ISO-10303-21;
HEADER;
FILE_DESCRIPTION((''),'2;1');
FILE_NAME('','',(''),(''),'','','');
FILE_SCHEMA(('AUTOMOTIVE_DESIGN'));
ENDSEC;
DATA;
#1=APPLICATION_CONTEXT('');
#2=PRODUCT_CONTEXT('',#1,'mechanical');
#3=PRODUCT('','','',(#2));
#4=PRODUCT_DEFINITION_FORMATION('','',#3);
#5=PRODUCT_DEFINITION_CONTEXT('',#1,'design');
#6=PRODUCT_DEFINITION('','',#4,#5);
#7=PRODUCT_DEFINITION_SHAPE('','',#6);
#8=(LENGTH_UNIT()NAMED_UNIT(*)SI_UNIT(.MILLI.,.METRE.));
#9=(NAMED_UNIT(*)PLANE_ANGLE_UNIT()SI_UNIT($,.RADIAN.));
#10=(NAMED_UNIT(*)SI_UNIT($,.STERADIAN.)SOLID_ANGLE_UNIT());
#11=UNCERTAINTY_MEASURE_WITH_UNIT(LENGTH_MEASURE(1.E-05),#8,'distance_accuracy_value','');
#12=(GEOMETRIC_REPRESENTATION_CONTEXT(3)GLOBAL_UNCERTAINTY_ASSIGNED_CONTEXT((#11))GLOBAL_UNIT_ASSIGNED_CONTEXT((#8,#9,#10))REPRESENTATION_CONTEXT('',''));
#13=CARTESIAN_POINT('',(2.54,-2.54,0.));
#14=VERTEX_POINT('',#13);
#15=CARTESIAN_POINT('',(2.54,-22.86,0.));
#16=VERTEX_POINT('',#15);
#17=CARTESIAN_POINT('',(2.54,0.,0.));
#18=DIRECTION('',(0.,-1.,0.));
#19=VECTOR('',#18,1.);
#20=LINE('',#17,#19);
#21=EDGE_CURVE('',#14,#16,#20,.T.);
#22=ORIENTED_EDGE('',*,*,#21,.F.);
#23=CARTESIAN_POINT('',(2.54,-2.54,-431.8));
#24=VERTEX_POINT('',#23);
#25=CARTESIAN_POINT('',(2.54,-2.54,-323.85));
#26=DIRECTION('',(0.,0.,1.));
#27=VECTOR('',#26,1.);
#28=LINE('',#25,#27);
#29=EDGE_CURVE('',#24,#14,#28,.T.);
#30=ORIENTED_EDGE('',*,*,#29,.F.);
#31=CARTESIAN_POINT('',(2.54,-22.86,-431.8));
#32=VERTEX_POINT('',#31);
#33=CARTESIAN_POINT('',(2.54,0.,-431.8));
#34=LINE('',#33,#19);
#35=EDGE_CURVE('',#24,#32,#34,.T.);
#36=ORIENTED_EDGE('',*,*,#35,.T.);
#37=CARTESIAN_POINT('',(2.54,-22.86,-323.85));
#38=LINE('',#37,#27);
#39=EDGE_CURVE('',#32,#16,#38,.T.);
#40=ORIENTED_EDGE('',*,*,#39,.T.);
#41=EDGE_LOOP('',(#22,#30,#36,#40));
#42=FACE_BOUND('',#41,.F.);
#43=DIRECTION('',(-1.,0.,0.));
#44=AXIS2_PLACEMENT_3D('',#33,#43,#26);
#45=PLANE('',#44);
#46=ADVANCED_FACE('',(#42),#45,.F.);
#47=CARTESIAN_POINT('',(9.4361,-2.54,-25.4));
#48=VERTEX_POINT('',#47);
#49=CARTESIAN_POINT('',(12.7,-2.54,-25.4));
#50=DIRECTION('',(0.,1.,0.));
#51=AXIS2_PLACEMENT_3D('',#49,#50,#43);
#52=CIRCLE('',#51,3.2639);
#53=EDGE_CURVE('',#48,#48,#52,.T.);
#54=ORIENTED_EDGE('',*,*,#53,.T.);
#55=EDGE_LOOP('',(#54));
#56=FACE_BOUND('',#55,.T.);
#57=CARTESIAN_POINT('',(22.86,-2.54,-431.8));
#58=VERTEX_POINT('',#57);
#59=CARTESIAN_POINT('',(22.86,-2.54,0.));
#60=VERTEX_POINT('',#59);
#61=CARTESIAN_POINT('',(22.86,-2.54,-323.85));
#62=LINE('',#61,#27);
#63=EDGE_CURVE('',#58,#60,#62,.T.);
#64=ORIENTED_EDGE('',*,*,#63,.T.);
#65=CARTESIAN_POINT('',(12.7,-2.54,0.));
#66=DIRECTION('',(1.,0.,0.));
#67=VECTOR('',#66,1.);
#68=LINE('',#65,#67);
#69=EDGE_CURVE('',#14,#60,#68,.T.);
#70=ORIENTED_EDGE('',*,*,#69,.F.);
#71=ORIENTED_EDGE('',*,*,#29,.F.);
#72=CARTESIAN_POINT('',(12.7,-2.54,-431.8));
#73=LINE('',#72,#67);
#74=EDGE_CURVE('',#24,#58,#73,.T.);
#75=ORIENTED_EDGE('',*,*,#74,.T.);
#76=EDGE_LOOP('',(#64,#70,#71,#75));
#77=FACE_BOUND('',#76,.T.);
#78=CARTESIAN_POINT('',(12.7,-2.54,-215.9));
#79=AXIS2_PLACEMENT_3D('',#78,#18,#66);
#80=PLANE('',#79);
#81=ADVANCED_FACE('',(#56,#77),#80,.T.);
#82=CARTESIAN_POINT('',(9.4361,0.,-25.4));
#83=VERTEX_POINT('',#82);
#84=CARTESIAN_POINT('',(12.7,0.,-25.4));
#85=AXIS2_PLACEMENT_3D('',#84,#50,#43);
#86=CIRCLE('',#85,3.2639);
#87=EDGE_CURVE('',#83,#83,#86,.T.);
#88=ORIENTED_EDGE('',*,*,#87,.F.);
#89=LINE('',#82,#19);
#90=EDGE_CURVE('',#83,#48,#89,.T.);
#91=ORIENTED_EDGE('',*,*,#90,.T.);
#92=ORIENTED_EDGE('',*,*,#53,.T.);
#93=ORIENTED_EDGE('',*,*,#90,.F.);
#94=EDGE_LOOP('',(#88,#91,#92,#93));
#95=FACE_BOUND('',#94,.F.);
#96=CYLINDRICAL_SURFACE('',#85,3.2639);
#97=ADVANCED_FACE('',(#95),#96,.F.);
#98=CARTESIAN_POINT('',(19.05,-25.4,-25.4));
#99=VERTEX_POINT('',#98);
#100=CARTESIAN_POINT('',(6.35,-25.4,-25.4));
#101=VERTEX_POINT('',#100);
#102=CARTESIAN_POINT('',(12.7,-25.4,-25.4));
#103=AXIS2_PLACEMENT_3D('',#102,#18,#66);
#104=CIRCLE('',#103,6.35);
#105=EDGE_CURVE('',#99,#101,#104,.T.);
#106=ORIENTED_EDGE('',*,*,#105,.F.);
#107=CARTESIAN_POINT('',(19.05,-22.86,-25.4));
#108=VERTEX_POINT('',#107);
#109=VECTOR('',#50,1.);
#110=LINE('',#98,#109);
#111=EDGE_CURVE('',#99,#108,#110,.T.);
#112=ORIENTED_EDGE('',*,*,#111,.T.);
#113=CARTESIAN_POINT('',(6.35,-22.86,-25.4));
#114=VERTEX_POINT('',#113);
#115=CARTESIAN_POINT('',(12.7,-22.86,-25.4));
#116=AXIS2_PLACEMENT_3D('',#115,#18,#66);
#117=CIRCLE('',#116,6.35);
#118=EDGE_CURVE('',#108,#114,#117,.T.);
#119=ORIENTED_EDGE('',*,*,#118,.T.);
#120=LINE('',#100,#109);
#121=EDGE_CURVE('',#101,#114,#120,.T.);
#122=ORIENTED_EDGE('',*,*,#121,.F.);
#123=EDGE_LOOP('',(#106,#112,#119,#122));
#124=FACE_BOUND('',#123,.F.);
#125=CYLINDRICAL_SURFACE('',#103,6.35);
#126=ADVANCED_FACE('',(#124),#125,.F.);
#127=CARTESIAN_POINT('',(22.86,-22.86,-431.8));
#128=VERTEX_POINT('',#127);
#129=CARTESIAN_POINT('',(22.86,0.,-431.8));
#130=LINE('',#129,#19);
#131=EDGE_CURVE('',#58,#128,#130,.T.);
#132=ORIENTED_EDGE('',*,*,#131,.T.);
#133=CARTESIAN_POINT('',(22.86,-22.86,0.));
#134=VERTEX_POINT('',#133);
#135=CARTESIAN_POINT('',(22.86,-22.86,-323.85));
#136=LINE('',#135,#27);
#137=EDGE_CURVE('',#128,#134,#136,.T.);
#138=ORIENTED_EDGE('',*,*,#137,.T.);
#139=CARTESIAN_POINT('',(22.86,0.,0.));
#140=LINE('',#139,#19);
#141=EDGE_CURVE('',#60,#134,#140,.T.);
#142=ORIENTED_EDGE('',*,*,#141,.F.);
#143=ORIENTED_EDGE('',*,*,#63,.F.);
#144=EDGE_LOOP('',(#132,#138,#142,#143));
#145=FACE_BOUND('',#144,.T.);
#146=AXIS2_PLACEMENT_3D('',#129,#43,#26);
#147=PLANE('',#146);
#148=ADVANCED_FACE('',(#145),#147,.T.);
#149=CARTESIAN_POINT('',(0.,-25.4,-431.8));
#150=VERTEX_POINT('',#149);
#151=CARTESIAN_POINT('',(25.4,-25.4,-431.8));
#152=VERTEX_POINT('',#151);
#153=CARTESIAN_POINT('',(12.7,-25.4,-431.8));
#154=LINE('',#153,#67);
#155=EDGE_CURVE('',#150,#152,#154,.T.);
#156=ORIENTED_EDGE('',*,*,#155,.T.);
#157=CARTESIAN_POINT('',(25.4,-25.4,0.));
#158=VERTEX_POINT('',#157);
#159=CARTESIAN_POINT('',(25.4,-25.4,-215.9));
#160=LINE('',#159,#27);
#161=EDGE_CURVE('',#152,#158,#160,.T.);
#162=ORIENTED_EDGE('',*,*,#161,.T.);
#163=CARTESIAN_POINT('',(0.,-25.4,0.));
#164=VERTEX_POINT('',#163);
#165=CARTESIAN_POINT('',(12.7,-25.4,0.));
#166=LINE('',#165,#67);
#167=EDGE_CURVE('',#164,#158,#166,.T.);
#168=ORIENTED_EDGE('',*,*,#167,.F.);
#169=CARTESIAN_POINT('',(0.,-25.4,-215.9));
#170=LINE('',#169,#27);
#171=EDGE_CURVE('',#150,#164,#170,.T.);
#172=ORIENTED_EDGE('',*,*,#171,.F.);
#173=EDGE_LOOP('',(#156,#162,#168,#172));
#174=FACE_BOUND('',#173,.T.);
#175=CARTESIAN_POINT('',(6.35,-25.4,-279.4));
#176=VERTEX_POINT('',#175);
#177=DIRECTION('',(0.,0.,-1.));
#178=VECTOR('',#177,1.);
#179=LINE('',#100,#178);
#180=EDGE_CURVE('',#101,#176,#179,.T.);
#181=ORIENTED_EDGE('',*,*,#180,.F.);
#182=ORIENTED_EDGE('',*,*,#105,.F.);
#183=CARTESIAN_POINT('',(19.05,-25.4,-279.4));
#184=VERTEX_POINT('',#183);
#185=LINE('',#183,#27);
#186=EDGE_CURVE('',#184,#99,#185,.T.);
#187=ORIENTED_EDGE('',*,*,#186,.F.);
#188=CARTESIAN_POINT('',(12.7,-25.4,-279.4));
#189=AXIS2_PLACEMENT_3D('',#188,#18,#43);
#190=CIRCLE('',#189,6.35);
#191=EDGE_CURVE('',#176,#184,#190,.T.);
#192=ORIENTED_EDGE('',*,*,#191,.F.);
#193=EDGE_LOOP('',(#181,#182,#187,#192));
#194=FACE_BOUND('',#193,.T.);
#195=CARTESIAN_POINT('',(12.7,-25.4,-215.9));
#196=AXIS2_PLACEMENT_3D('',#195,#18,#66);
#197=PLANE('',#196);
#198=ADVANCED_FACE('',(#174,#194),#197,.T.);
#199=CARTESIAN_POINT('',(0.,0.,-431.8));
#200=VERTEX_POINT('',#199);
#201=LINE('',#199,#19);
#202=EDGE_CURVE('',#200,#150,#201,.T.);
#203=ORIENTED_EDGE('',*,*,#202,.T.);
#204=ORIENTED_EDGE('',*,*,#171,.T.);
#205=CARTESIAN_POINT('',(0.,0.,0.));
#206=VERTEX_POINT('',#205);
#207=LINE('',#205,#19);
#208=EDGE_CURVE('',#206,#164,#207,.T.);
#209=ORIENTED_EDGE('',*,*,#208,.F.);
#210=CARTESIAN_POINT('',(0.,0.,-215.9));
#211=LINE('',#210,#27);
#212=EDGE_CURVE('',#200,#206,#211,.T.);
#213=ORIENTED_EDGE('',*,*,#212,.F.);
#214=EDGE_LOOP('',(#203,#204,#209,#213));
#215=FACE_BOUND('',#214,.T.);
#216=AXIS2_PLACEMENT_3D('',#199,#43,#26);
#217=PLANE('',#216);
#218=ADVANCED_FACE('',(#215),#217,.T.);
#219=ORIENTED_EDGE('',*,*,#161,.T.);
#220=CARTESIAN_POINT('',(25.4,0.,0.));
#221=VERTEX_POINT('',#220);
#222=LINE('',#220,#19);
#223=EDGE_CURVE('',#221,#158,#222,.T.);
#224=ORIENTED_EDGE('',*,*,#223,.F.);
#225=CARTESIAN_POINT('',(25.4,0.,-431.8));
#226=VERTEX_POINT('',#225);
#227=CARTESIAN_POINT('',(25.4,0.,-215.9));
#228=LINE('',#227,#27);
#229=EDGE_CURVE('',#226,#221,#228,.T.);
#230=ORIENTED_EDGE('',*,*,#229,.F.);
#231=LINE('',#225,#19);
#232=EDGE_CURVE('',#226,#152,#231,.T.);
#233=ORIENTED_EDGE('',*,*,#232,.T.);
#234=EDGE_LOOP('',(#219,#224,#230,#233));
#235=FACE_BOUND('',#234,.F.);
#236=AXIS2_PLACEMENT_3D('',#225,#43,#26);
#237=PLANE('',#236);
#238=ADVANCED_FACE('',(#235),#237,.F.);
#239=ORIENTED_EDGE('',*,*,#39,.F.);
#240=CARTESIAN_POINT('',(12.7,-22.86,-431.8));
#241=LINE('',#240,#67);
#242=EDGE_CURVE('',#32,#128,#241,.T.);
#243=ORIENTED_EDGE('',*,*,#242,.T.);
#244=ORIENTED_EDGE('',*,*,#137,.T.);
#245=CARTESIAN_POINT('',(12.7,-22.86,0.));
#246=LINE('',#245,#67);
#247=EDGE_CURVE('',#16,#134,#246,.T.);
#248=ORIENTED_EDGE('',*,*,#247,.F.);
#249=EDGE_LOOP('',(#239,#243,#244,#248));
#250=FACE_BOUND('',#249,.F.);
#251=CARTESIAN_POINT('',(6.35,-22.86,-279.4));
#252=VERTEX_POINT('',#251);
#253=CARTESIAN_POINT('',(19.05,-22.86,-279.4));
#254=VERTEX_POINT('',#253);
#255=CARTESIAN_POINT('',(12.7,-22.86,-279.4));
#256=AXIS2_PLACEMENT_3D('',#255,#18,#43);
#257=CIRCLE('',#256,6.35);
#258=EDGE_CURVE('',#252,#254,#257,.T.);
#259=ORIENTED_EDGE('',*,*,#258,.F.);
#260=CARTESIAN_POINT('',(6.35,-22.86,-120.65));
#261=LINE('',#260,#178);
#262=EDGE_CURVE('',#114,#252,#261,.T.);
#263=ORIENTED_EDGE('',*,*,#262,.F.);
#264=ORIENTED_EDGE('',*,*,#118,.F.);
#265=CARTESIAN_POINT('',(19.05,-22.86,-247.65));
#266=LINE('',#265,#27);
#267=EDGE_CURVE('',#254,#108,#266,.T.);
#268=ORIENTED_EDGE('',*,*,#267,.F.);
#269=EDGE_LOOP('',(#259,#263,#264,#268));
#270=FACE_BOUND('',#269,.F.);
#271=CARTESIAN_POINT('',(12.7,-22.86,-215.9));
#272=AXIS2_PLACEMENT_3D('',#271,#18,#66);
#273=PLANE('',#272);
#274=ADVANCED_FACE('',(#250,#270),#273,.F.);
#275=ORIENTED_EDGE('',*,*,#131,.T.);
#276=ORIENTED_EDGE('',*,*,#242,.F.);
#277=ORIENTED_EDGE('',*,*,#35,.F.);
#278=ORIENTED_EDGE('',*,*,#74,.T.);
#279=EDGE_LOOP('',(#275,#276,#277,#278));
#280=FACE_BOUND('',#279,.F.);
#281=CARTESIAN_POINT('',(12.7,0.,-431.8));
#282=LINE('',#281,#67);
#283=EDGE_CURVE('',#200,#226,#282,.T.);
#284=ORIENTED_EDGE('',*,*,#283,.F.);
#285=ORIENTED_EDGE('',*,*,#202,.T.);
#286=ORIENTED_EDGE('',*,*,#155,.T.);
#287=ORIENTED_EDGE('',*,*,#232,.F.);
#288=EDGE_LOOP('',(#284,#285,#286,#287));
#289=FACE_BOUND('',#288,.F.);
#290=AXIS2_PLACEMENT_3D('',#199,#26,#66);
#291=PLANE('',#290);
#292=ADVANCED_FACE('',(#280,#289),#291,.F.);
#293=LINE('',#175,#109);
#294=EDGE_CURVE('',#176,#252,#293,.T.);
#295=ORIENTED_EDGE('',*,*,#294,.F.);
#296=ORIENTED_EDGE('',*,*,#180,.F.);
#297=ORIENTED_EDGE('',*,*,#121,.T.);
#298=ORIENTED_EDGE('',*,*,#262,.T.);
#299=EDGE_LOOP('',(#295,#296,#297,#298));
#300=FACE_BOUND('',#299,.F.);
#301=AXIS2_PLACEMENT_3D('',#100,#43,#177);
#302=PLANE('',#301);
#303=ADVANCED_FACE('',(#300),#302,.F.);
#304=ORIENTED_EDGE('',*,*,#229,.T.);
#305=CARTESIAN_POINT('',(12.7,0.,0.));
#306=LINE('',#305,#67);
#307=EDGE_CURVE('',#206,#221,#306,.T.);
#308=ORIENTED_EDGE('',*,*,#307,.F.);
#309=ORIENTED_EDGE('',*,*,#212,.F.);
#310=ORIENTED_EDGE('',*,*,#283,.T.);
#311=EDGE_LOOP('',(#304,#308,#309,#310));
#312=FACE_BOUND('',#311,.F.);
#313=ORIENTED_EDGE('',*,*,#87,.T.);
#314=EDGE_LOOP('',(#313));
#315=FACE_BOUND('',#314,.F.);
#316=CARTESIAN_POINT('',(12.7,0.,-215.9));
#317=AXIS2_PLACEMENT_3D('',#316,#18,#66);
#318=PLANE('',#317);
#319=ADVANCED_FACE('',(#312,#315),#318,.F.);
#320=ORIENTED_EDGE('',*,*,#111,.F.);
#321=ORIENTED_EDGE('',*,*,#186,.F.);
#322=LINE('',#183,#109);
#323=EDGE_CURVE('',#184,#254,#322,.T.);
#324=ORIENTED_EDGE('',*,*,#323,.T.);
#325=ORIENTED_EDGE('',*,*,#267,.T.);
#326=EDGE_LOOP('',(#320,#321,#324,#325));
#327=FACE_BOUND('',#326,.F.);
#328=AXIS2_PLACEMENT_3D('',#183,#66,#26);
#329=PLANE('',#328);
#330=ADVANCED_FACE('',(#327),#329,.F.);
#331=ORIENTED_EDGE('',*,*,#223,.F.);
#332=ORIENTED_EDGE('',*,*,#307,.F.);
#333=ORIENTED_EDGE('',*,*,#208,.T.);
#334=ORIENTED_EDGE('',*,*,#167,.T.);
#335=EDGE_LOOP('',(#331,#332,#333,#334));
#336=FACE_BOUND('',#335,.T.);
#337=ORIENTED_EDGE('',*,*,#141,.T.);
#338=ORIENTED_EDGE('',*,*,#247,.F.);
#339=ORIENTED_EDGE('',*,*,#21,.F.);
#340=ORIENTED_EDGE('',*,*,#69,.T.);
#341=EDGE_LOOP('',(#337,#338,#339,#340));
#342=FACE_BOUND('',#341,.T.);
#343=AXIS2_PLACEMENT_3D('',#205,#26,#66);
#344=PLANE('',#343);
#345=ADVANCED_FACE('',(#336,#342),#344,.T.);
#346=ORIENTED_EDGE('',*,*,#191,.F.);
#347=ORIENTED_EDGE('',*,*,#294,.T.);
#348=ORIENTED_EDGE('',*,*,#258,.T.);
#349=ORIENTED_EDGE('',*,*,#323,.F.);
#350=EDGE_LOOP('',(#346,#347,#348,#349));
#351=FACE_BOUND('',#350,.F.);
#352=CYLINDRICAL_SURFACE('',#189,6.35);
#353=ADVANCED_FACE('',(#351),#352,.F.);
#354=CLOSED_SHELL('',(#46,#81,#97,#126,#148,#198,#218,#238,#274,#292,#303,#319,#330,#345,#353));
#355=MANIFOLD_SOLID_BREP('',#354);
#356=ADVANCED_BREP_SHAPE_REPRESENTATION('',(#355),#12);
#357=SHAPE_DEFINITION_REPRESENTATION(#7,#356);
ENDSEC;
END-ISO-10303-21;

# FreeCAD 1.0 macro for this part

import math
import FreeCAD as App
import Part
import Sketcher

V = App.Vector
Q = App.Units.Quantity


def faces_at(feature, points):
    """Names of the faces that lie closest to the given points."""
    faces = feature.Shape.Faces
    near = lambda p: min(range(len(faces)), key=lambda i: faces[i].distToShape(Part.Vertex(*p))[0])
    return sorted({f"Face{near(p) + 1}" for p in points})


def add_polygon(sketch, points):
    """Adds a closed chain of lines whose ends are joined by coincident constraints."""
    first, n = sketch.GeometryCount, len(points)
    for a, b in zip(points, points[1:] + points[:1]):
        sketch.addGeometry(Part.LineSegment(App.Vector(*a, 0), App.Vector(*b, 0)), False)
    for i in range(n):
        sketch.addConstraint(Sketcher.Constraint("Coincident", first + i, 2, first + (i + 1) % n, 1))

doc = App.newDocument("Part")
body = doc.addObject("PartDesign::Body", "Body")

# Sketch on XZ plane
sketch1 = body.newObject("Sketcher::SketchObject", "Sketch")
sketch1.AttachmentSupport = (doc.getObject("XZ_Plane"), [""])
sketch1.MapMode = "FlatFace"
add_polygon(sketch1, [(0, 0), (0, -432), (25, -432), (25, 0)])  # lines 0-3
sketch1.addConstraint([
    Sketcher.Constraint("Vertical", 0),
    Sketcher.Constraint("Horizontal", 1),
    Sketcher.Constraint("Vertical", 2),
    Sketcher.Constraint("Horizontal", 3),
    Sketcher.Constraint("Coincident", 3, 2, -1, 1),
    Sketcher.Constraint("DistanceX", 1, 1, 1, 2, Q("1 in")),
    Sketcher.Constraint("DistanceY", 0, 2, 0, 1, Q("17 in")),
])
pad1 = body.newObject("PartDesign::Pad", "Pad")
pad1.Profile = sketch1
pad1.Length = Q("1 in")
doc.recompute()

thickness = body.newObject("PartDesign::Thickness", "Thickness")
thickness.Base = (pad1, faces_at(pad1, [(12.7, -12.7, 0), (12.7, -12.7, -431.8)]))
thickness.Value = Q("0.1 in")
thickness.Reversed = True
thickness.Join = "Arc"

# Sketch on XZ plane
sketch2 = body.newObject("Sketcher::SketchObject", "Sketch001")
sketch2.AttachmentSupport = (doc.getObject("XZ_Plane"), [""])
sketch2.MapMode = "FlatFace"
sketch2.AttachmentOffset = App.Placement(V(0, 0, 1 * 25.4), App.Rotation())
sketch2.addGeometry([
    Part.LineSegment(V(19, -279, 0), V(19, -25, 0)),
    Part.ArcOfCircle(Part.Circle(V(13, -25, 0), V(0, 0, 1), 6), math.radians(0), math.radians(180)),
    Part.LineSegment(V(6, -25, 0), V(6, -279, 0)),
    Part.ArcOfCircle(Part.Circle(V(13, -279, 0), V(0, 0, 1), 6), math.radians(180), math.radians(360)),
], False)
sketch2.addConstraint([
    Sketcher.Constraint("Tangent", 0, 2, 1, 1),
    Sketcher.Constraint("Tangent", 1, 2, 2, 1),
    Sketcher.Constraint("Tangent", 2, 2, 3, 1),
    Sketcher.Constraint("Tangent", 3, 2, 0, 1),
    Sketcher.Constraint("Vertical", 0),
    Sketcher.Constraint("Vertical", 2),
    Sketcher.Constraint("DistanceY", 0, 1, 0, 2, Q("10 in")),
    Sketcher.Constraint("Radius", 1, Q("0.25 in")),
    Sketcher.Constraint("DistanceY", 1, 3, -1, 1, Q("1 in")),
    Sketcher.Constraint("DistanceX", -1, 1, 1, 3, Q("0.5 in")),
])
pocket1 = body.newObject("PartDesign::Pocket", "Pocket")
pocket1.Profile = sketch2
pocket1.Length = Q("0.25 in")

# Sketch on XZ plane
sketch3 = body.newObject("Sketcher::SketchObject", "Sketch002")
sketch3.AttachmentSupport = (doc.getObject("XZ_Plane"), [""])
sketch3.MapMode = "FlatFace"
sketch3.addGeometry(Part.Circle(V(12.7, -25.4, 0), V(0, 0, 1), 3.3), False)
sketch3.addConstraint([
    Sketcher.Constraint("Diameter", 0, Q("0.257 in")),
    Sketcher.Constraint("DistanceY", 0, 3, -1, 1, Q("1 in")),
    Sketcher.Constraint("DistanceX", -1, 1, 0, 3, Q("0.5 in")),
])
pocket2 = body.newObject("PartDesign::Pocket", "Pocket001")
pocket2.Profile = sketch3
pocket2.Length = Q("0.1 in")
pocket2.Reversed = True

doc.recompute()
